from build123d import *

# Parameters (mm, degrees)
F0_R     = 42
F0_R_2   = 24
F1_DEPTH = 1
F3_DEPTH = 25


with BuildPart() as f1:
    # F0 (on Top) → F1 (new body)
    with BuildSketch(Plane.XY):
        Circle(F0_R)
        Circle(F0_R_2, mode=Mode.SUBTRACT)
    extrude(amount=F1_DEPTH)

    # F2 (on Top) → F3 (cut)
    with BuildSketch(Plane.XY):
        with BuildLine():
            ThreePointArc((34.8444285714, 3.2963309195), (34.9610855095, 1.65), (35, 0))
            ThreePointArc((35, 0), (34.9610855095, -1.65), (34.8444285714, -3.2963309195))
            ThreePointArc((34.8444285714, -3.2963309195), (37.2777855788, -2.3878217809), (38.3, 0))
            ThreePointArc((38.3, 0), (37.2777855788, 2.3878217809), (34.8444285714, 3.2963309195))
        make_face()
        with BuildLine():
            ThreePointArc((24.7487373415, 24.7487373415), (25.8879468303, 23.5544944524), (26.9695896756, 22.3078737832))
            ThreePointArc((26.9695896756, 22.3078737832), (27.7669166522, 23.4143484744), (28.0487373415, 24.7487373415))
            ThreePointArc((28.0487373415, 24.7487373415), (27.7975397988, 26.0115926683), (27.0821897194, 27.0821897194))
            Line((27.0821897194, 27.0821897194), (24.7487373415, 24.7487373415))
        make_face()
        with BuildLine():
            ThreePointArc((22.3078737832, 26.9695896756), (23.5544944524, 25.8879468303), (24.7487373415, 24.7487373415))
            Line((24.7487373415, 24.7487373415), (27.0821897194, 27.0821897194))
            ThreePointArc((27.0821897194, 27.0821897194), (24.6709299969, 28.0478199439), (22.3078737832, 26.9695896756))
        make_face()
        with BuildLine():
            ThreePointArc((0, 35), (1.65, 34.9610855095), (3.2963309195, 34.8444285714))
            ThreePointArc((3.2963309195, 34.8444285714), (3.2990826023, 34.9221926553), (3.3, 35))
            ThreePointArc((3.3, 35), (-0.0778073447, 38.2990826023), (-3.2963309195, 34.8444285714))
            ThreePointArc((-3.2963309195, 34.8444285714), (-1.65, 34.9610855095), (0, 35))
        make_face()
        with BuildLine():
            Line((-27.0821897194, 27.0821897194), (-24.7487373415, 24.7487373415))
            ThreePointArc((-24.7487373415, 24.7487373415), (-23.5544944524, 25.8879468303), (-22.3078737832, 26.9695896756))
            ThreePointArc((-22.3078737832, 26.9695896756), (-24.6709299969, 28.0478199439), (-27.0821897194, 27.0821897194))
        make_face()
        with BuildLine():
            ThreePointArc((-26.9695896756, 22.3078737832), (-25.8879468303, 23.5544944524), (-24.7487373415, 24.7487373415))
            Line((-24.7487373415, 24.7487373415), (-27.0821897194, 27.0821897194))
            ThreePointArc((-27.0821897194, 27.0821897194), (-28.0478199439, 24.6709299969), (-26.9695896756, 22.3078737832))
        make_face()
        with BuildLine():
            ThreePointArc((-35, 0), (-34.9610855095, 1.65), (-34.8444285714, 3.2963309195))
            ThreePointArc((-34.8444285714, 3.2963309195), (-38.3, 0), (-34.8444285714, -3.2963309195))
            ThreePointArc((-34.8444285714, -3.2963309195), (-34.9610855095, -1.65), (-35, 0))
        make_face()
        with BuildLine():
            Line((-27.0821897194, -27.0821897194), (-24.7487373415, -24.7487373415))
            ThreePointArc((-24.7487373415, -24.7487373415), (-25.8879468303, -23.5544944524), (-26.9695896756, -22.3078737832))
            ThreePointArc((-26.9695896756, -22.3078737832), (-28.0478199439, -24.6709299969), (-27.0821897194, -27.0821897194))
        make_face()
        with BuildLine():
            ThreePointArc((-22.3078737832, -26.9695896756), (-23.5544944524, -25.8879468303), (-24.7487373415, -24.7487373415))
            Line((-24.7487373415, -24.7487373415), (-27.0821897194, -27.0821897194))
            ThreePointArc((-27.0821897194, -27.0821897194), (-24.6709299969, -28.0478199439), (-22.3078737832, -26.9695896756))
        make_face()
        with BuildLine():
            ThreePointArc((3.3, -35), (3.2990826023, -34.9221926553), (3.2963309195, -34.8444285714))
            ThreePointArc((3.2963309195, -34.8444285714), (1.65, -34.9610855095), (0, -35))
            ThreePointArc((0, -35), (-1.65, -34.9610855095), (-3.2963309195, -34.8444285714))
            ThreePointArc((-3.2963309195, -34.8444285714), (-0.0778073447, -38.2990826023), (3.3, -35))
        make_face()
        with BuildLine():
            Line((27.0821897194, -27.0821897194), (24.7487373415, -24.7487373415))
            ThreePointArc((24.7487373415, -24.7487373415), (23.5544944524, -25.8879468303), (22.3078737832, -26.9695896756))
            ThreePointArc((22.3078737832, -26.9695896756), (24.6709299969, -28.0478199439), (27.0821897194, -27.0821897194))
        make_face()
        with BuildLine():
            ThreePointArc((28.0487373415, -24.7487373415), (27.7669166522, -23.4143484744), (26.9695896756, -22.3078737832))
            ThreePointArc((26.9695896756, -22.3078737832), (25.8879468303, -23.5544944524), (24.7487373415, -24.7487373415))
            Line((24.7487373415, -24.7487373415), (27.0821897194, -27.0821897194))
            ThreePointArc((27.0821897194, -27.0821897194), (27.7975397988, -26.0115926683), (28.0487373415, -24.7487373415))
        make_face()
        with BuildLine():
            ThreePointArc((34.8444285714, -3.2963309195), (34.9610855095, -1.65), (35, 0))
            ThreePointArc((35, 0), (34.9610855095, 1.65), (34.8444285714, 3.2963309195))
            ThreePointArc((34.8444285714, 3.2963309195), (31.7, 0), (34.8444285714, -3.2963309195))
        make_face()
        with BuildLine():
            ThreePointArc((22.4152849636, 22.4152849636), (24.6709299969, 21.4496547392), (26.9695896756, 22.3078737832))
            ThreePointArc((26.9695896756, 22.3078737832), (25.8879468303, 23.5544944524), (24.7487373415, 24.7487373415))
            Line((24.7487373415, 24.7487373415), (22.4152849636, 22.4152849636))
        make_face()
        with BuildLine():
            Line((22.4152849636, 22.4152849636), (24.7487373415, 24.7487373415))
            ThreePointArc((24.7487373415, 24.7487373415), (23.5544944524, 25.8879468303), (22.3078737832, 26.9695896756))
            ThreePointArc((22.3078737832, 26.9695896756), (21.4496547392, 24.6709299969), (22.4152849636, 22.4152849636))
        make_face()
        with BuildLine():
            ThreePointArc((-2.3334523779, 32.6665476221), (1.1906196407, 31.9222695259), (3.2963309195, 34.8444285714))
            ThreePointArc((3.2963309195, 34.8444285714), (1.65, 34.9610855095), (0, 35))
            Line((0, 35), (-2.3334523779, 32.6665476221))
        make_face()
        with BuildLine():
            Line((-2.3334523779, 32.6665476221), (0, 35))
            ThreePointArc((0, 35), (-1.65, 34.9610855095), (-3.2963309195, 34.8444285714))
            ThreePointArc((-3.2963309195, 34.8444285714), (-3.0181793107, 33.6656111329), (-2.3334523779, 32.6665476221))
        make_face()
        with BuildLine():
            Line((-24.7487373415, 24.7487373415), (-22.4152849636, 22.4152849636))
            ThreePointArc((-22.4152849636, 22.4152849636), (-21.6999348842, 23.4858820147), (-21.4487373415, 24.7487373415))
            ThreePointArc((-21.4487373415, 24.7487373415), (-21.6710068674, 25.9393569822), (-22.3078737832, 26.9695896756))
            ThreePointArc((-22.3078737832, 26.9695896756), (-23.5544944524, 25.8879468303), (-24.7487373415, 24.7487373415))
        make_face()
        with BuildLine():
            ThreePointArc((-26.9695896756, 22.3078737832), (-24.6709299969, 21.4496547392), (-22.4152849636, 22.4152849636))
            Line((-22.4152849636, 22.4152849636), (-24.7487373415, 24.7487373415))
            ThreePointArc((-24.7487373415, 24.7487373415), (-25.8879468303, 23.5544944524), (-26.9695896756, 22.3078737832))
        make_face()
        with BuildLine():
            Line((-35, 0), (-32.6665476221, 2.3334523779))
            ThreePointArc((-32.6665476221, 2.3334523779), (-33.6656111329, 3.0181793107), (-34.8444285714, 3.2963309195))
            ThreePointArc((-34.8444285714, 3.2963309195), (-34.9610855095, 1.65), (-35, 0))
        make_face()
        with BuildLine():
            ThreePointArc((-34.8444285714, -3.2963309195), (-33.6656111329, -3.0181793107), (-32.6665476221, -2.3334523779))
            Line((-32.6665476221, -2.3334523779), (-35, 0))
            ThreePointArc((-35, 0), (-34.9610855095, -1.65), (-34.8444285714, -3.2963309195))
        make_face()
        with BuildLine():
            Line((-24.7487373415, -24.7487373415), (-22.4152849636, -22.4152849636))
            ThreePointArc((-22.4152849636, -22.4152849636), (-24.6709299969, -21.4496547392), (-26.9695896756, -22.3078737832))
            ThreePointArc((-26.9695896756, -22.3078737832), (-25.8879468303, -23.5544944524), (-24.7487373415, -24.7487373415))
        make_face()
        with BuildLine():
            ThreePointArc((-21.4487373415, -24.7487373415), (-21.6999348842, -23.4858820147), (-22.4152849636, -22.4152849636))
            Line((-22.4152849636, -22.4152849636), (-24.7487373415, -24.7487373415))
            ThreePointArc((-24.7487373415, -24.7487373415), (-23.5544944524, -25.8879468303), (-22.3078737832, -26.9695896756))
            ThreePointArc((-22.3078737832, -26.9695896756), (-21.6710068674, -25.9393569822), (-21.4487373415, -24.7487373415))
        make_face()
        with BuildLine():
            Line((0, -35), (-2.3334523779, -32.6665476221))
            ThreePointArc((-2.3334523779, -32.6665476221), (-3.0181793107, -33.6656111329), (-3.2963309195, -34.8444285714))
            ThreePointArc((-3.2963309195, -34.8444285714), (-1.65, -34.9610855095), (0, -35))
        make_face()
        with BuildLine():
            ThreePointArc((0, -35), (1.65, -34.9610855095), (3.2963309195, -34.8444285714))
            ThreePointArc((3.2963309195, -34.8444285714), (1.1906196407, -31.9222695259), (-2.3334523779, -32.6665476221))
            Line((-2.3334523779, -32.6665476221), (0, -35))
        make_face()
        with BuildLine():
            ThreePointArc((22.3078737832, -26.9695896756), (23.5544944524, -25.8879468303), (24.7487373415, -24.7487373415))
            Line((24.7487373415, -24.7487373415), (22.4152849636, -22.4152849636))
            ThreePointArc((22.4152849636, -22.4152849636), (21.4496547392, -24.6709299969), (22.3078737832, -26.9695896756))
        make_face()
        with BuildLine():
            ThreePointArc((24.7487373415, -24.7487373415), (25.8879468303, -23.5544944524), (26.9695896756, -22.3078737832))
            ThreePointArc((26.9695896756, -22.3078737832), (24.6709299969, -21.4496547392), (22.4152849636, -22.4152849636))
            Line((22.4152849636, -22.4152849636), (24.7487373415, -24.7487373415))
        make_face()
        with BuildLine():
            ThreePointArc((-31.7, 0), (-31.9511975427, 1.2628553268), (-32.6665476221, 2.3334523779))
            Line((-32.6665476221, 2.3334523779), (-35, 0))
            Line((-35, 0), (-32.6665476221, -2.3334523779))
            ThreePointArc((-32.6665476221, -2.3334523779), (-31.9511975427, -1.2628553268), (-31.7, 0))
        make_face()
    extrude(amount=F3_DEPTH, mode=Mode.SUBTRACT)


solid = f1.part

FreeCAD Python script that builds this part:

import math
import FreeCAD as App
import Part
import Sketcher

V = App.Vector
Q = App.Units.Quantity

doc = App.newDocument("Part")
params = doc.addObject("Spreadsheet::Sheet", "Params")
for row, (alias, value) in enumerate([
    ("sketch1_diameter", "84 mm"),
    ("sketch1_diameter2", "48 mm"),
    ("pad1_length", "1 mm"),
    ("sketch2_radius", "3.3 mm"),
    ("pocket1_length", "25 mm"),
], start=1):
    params.set(f"A{row}", alias)
    params.set(f"B{row}", "=" + value)
    params.setAlias(f"B{row}", alias)

body = doc.addObject("PartDesign::Body", "Body")

# Sketch on XY plane
sketch1 = doc.addObject("Sketcher::SketchObject", "Sketch")
body.addObject(sketch1)
sketch1.AttachmentSupport = (doc.XY_Plane, [""])
sketch1.MapMode = "FlatFace"
sketch1.addGeometry(Part.Circle(V(0, 0, 0), V(0, 0, 1), 42), False)
sketch1.addGeometry(Part.Circle(V(0, 0, 0), V(0, 0, 1), 24), False)
sketch1.addConstraint(Sketcher.Constraint("Coincident", 0, 3, -1, 1))
sketch1.addConstraint(Sketcher.Constraint("Coincident", 1, 3, -1, 1))
sketch1.addConstraint(Sketcher.Constraint("Diameter", 0, Q("84 mm")))
sketch1.addConstraint(Sketcher.Constraint("Diameter", 1, Q("48 mm")))
sketch1.setExpression("Constraints[2]", "Params.sketch1_diameter")
sketch1.setExpression("Constraints[3]", "Params.sketch1_diameter2")
pad1 = doc.addObject("PartDesign::Pad", "Pad")
body.addObject(pad1)
pad1.Profile = sketch1
pad1.setExpression("Length", "Params.pad1_length")

# Sketch on XY plane
sketch2 = doc.addObject("Sketcher::SketchObject", "Sketch001")
body.addObject(sketch2)
sketch2.AttachmentSupport = (doc.XY_Plane, [""])
sketch2.MapMode = "FlatFace"
sketch2.addGeometry(Part.ArcOfCircle(Part.Circle(V(35, 0, 0), V(0, 0, 1), 3.3), math.radians(-93), math.radians(0)), False)
sketch2.addGeometry(Part.ArcOfCircle(Part.Circle(V(35, 0, 0), V(0, 0, 1), 3.3), math.radians(0), math.radians(93)), False)
sketch2.addGeometry(Part.ArcOfCircle(Part.Circle(V(35, 0, 0), V(0, 0, 1), 3.3), math.radians(93), math.radians(267)), False)
sketch2.addGeometry(Part.ArcOfCircle(Part.Circle(V(24.75, 24.75, 0), V(0, 0, 1), 3.3), math.radians(-48), math.radians(0)), False)
sketch2.addGeometry(Part.ArcOfCircle(Part.Circle(V(24.75, 24.75, 0), V(0, 0, 1), 3.3), math.radians(0), math.radians(45)), False)
sketch2.addGeometry(Part.ArcOfCircle(Part.Circle(V(24.75, 24.75, 0), V(0, 0, 1), 3.3), math.radians(45), math.radians(138)), False)
sketch2.addGeometry(Part.ArcOfCircle(Part.Circle(V(24.75, 24.75, 0), V(0, 0, 1), 3.3), math.radians(138), math.radians(225)), False)
sketch2.addGeometry(Part.ArcOfCircle(Part.Circle(V(24.75, 24.75, 0), V(0, 0, 1), 3.3), math.radians(-135), math.radians(-48)), False)
sketch2.addGeometry(Part.ArcOfCircle(Part.Circle(V(0, 35, 0), V(0, 0, 1), 3.3), math.radians(-2.7), math.radians(0)), False)
sketch2.addGeometry(Part.ArcOfCircle(Part.Circle(V(0, 35, 0), V(0, 0, 1), 3.3), math.radians(0), math.radians(183)), False)
sketch2.addGeometry(Part.ArcOfCircle(Part.Circle(V(0, 35, 0), V(0, 0, 1), 3.3), math.radians(-177), math.radians(-135)), False)
sketch2.addGeometry(Part.ArcOfCircle(Part.Circle(V(0, 35, 0), V(0, 0, 1), 3.3), math.radians(-135), math.radians(-3)), False)
sketch2.addGeometry(Part.ArcOfCircle(Part.Circle(V(-24.75, 24.75, 0), V(0, 0, 1), 3.3), math.radians(42), math.radians(135)), False)
sketch2.addGeometry(Part.ArcOfCircle(Part.Circle(V(-24.75, 24.75, 0), V(0, 0, 1), 3.3), math.radians(135), math.radians(228)), False)
sketch2.addGeometry(Part.ArcOfCircle(Part.Circle(V(-24.75, 24.75, 0), V(0, 0, 1), 3.3), math.radians(-132), math.radians(-45)), False)
sketch2.addGeometry(Part.ArcOfCircle(Part.Circle(V(-24.75, 24.75, 0), V(0, 0, 1), 3.3), math.radians(-45), math.radians(0)), False)
sketch2.addGeometry(Part.ArcOfCircle(Part.Circle(V(-24.75, 24.75, 0), V(0, 0, 1), 3.3), math.radians(0), math.radians(42)), False)
sketch2.addGeometry(Part.ArcOfCircle(Part.Circle(V(-35, 0, 0), V(0, 0, 1), 3.3), math.radians(87), math.radians(273)), False)
sketch2.addGeometry(Part.ArcOfCircle(Part.Circle(V(-35, 0, 0), V(0, 0, 1), 3.3), math.radians(-87), math.radians(-45)), False)
sketch2.addGeometry(Part.ArcOfCircle(Part.Circle(V(-35, 0, 0), V(0, 0, 1), 3.3), math.radians(-45), math.radians(0)), False)
sketch2.addGeometry(Part.ArcOfCircle(Part.Circle(V(-35, 0, 0), V(0, 0, 1), 3.3), math.radians(0), math.radians(45)), False)
sketch2.addGeometry(Part.ArcOfCircle(Part.Circle(V(-35, 0, 0), V(0, 0, 1), 3.3), math.radians(45), math.radians(87)), False)
sketch2.addGeometry(Part.ArcOfCircle(Part.Circle(V(-24.75, -24.75, 0), V(0, 0, 1), 3.3), math.radians(132), math.radians(225)), False)
sketch2.addGeometry(Part.ArcOfCircle(Part.Circle(V(-24.75, -24.75, 0), V(0, 0, 1), 3.3), math.radians(-135), math.radians(-42)), False)
sketch2.addGeometry(Part.ArcOfCircle(Part.Circle(V(-24.75, -24.75, 0), V(0, 0, 1), 3.3), math.radians(-42), math.radians(0)), False)
sketch2.addGeometry(Part.ArcOfCircle(Part.Circle(V(-24.75, -24.75, 0), V(0, 0, 1), 3.3), math.radians(0), math.radians(45)), False)
sketch2.addGeometry(Part.ArcOfCircle(Part.Circle(V(-24.75, -24.75, 0), V(0, 0, 1), 3.3), math.radians(45), math.radians(132)), False)
sketch2.addGeometry(Part.ArcOfCircle(Part.Circle(V(0, -35, 0), V(0, 0, 1), 3.3), math.radians(0), math.radians(2.7)), False)
sketch2.addGeometry(Part.ArcOfCircle(Part.Circle(V(0, -35, 0), V(0, 0, 1), 3.3), math.radians(3), math.radians(135)), False)
sketch2.addGeometry(Part.ArcOfCircle(Part.Circle(V(0, -35, 0), V(0, 0, 1), 3.3), math.radians(135), math.radians(177)), False)
sketch2.addGeometry(Part.ArcOfCircle(Part.Circle(V(0, -35, 0), V(0, 0, 1), 3.3), math.radians(177), math.radians(360)), False)
sketch2.addGeometry(Part.ArcOfCircle(Part.Circle(V(24.75, -24.75, 0), V(0, 0, 1), 3.3), math.radians(-138), math.radians(-45)), False)
sketch2.addGeometry(Part.ArcOfCircle(Part.Circle(V(24.75, -24.75, 0), V(0, 0, 1), 3.3), math.radians(-45), math.radians(0)), False)
sketch2.addGeometry(Part.ArcOfCircle(Part.Circle(V(24.75, -24.75, 0), V(0, 0, 1), 3.3), math.radians(0), math.radians(48)), False)
sketch2.addGeometry(Part.ArcOfCircle(Part.Circle(V(24.75, -24.75, 0), V(0, 0, 1), 3.3), math.radians(48), math.radians(135)), False)
sketch2.addGeometry(Part.ArcOfCircle(Part.Circle(V(24.75, -24.75, 0), V(0, 0, 1), 3.3), math.radians(135), math.radians(222)), False)
sketch2.addConstraint(Sketcher.Constraint("Tangent", 0, 2, 1, 1))
sketch2.addConstraint(Sketcher.Constraint("Tangent", 1, 2, 2, 1))
sketch2.addConstraint(Sketcher.Constraint("Tangent", 2, 2, 0, 1))
sketch2.addConstraint(Sketcher.Constraint("Tangent", 3, 2, 4, 1))
sketch2.addConstraint(Sketcher.Constraint("Tangent", 4, 2, 5, 1))
sketch2.addConstraint(Sketcher.Constraint("Tangent", 5, 2, 6, 1))
sketch2.addConstraint(Sketcher.Constraint("Tangent", 6, 2, 7, 1))
sketch2.addConstraint(Sketcher.Constraint("Tangent", 7, 2, 3, 1))
sketch2.addConstraint(Sketcher.Constraint("Tangent", 8, 2, 9, 1))
sketch2.addConstraint(Sketcher.Constraint("Tangent", 9, 2, 10, 1))
sketch2.addConstraint(Sketcher.Constraint("Tangent", 10, 2, 11, 1))
sketch2.addConstraint(Sketcher.Constraint("Tangent", 11, 2, 8, 1))
sketch2.addConstraint(Sketcher.Constraint("Tangent", 12, 2, 13, 1))
sketch2.addConstraint(Sketcher.Constraint("Tangent", 13, 2, 14, 1))
sketch2.addConstraint(Sketcher.Constraint("Tangent", 14, 2, 15, 1))
sketch2.addConstraint(Sketcher.Constraint("Tangent", 15, 2, 16, 1))
sketch2.addConstraint(Sketcher.Constraint("Tangent", 16, 2, 12, 1))
sketch2.addConstraint(Sketcher.Constraint("Tangent", 17, 2, 18, 1))
sketch2.addConstraint(Sketcher.Constraint("Tangent", 18, 2, 19, 1))
sketch2.addConstraint(Sketcher.Constraint("Tangent", 19, 2, 20, 1))
sketch2.addConstraint(Sketcher.Constraint("Tangent", 20, 2, 21, 1))
sketch2.addConstraint(Sketcher.Constraint("Tangent", 21, 2, 17, 1))
sketch2.addConstraint(Sketcher.Constraint("Tangent", 22, 2, 23, 1))
sketch2.addConstraint(Sketcher.Constraint("Tangent", 23, 2, 24, 1))
sketch2.addConstraint(Sketcher.Constraint("Tangent", 24, 2, 25, 1))
sketch2.addConstraint(Sketcher.Constraint("Tangent", 25, 2, 26, 1))
sketch2.addConstraint(Sketcher.Constraint("Tangent", 26, 2, 22, 1))
sketch2.addConstraint(Sketcher.Constraint("Tangent", 27, 2, 28, 1))
sketch2.addConstraint(Sketcher.Constraint("Tangent", 28, 2, 29, 1))
sketch2.addConstraint(Sketcher.Constraint("Tangent", 29, 2, 30, 1))
sketch2.addConstraint(Sketcher.Constraint("Tangent", 30, 2, 27, 1))
sketch2.addConstraint(Sketcher.Constraint("Tangent", 31, 2, 32, 1))
sketch2.addConstraint(Sketcher.Constraint("Tangent", 32, 2, 33, 1))
sketch2.addConstraint(Sketcher.Constraint("Tangent", 33, 2, 34, 1))
sketch2.addConstraint(Sketcher.Constraint("Tangent", 34, 2, 35, 1))
sketch2.addConstraint(Sketcher.Constraint("Tangent", 35, 2, 31, 1))
sketch2.addConstraint(Sketcher.Constraint("Coincident", 5, 3, 3, 3))
sketch2.addConstraint(Sketcher.Constraint("Coincident", 14, 3, 12, 3))
sketch2.addConstraint(Sketcher.Constraint("Coincident", 19, 3, 17, 3))
sketch2.addConstraint(Sketcher.Constraint("Coincident", 24, 3, 22, 3))
sketch2.addConstraint(Sketcher.Constraint("Coincident", 33, 3, 31, 3))
sketch2.addConstraint(Sketcher.Constraint("Equal", 2, 3))
sketch2.addConstraint(Sketcher.Constraint("Equal", 7, 8))
sketch2.addConstraint(Sketcher.Constraint("Equal", 8, 9))
sketch2.addConstraint(Sketcher.Constraint("Equal", 11, 12))
sketch2.addConstraint(Sketcher.Constraint("Equal", 16, 17))
sketch2.addConstraint(Sketcher.Constraint("Equal", 21, 22))
sketch2.addConstraint(Sketcher.Constraint("Equal", 26, 27))
sketch2.addConstraint(Sketcher.Constraint("Equal", 27, 28))
sketch2.addConstraint(Sketcher.Constraint("Equal", 30, 31))
sketch2.addConstraint(Sketcher.Constraint("Symmetric", 0, 3, 17, 3, -1, 1))
sketch2.addConstraint(Sketcher.Constraint("Symmetric", 3, 3, 22, 3, -1, 1))
sketch2.addConstraint(Sketcher.Constraint("Symmetric", 8, 3, 27, 3, -1, 1))
sketch2.addConstraint(Sketcher.Constraint("Symmetric", 12, 3, 31, 3, -1, 1))
sketch2.addConstraint(Sketcher.Constraint("Symmetric", 3, 3, 12, 3, -2))
sketch2.addConstraint(Sketcher.Constraint("Symmetric", 9, 2, 11, 2, -2))
sketch2.addConstraint(Sketcher.Constraint("Symmetric", 2, 2, 17, 2, -2))
sketch2.addConstraint(Sketcher.Constraint("PointOnObject", 0, 2, -1))
sketch2.addConstraint(Sketcher.Constraint("PointOnObject", 19, 2, -1))
sketch2.addConstraint(Sketcher.Constraint("Horizontal", 16, 3, 3, 2))
sketch2.addConstraint(Sketcher.Constraint("Horizontal", 11, 3, 8, 2))
sketch2.addConstraint(Sketcher.Constraint("Horizontal", 4, 2, 12, 2))
sketch2.addConstraint(Sketcher.Constraint("Horizontal", 7, 2, 13, 2))
sketch2.addConstraint(Sketcher.Constraint("Horizontal", 6, 2, 14, 2))
sketch2.addConstraint(Sketcher.Constraint("Horizontal", 3, 2, 15, 2))
sketch2.addConstraint(Sketcher.Constraint("Horizontal", 5, 2, 16, 2))
sketch2.addConstraint(Sketcher.Constraint("Horizontal", 1, 2, 21, 2))
sketch2.addConstraint(Sketcher.Constraint("Horizontal", 35, 3, 24, 2))
sketch2.addConstraint(Sketcher.Constraint("Horizontal", 27, 2, 29, 2))
sketch2.addConstraint(Sketcher.Constraint("Horizontal", 29, 3, 30, 2))
sketch2.addConstraint(Sketcher.Constraint("Horizontal", 22, 2, 31, 2))
sketch2.addConstraint(Sketcher.Constraint("Horizontal", 24, 2, 32, 2))
sketch2.addConstraint(Sketcher.Constraint("Horizontal", 26, 2, 33, 2))
sketch2.addConstraint(Sketcher.Constraint("Horizontal", 25, 2, 34, 2))
sketch2.addConstraint(Sketcher.Constraint("Horizontal", 23, 2, 35, 2))
sketch2.addConstraint(Sketcher.Constraint("Vertical", 1, 2, 2, 2))
sketch2.addConstraint(Sketcher.Constraint("Vertical", 18, 2, 20, 2))
sketch2.addConstraint(Sketcher.Constraint("Vertical", 12, 2, 22, 2))
sketch2.addConstraint(Sketcher.Constraint("Vertical", 16, 2, 23, 2))
sketch2.addConstraint(Sketcher.Constraint("Vertical", 14, 2, 25, 2))
sketch2.addConstraint(Sketcher.Constraint("Vertical", 13, 2, 26, 2))
sketch2.addConstraint(Sketcher.Constraint("Vertical", 11, 2, 27, 2))
sketch2.addConstraint(Sketcher.Constraint("Vertical", 10, 2, 28, 2))
sketch2.addConstraint(Sketcher.Constraint("Radius", 0, Q("3.3 mm")))
sketch2.addConstraint(Sketcher.Constraint("DistanceX", -1, 1, 0, 3, Q("35 mm")))
sketch2.addConstraint(Sketcher.Constraint("DistanceY", -1, 1, 8, 3, Q("35 mm")))
sketch2.addConstraint(Sketcher.Constraint("DistanceX", -1, 1, 1, 2, Q("34.844429 mm")))
sketch2.addConstraint(Sketcher.Constraint("DistanceX", -1, 1, 4, 2, Q("27.08219 mm")))
sketch2.addConstraint(Sketcher.Constraint("DistanceY", -1, 1, 4, 2, Q("27.08219 mm")))
sketch2.addConstraint(Sketcher.Constraint("DistanceY", -1, 1, 5, 2, Q("26.96959 mm")))
sketch2.addConstraint(Sketcher.Constraint("DistanceX", -1, 1, 7, 2, Q("26.96959 mm")))
sketch2.addConstraint(Sketcher.Constraint("DistanceX", 9, 2, -1, 1, Q("3.296331 mm")))
sketch2.addConstraint(Sketcher.Constraint("DistanceX", -1, 1, 3, 3, Q("24.748737 mm")))
sketch2.addConstraint(Sketcher.Constraint("DistanceX", -1, 1, 6, 2, Q("22.415285 mm")))
sketch2.addConstraint(Sketcher.Constraint("DistanceX", 10, 2, -1, 1, Q("2.333452 mm")))
sketch2.addConstraint(Sketcher.Constraint("DistanceX", 18, 2, -1, 1, Q("32.666548 mm")))
sketch2.setExpression("Constraints[83]", "Params.sketch2_radius")
pocket1 = doc.addObject("PartDesign::Pocket", "Pocket")
body.addObject(pocket1)
pocket1.Profile = sketch2
pocket1.setExpression("Length", "Params.pocket1_length")
pocket1.Reversed = True

doc.recompute()
